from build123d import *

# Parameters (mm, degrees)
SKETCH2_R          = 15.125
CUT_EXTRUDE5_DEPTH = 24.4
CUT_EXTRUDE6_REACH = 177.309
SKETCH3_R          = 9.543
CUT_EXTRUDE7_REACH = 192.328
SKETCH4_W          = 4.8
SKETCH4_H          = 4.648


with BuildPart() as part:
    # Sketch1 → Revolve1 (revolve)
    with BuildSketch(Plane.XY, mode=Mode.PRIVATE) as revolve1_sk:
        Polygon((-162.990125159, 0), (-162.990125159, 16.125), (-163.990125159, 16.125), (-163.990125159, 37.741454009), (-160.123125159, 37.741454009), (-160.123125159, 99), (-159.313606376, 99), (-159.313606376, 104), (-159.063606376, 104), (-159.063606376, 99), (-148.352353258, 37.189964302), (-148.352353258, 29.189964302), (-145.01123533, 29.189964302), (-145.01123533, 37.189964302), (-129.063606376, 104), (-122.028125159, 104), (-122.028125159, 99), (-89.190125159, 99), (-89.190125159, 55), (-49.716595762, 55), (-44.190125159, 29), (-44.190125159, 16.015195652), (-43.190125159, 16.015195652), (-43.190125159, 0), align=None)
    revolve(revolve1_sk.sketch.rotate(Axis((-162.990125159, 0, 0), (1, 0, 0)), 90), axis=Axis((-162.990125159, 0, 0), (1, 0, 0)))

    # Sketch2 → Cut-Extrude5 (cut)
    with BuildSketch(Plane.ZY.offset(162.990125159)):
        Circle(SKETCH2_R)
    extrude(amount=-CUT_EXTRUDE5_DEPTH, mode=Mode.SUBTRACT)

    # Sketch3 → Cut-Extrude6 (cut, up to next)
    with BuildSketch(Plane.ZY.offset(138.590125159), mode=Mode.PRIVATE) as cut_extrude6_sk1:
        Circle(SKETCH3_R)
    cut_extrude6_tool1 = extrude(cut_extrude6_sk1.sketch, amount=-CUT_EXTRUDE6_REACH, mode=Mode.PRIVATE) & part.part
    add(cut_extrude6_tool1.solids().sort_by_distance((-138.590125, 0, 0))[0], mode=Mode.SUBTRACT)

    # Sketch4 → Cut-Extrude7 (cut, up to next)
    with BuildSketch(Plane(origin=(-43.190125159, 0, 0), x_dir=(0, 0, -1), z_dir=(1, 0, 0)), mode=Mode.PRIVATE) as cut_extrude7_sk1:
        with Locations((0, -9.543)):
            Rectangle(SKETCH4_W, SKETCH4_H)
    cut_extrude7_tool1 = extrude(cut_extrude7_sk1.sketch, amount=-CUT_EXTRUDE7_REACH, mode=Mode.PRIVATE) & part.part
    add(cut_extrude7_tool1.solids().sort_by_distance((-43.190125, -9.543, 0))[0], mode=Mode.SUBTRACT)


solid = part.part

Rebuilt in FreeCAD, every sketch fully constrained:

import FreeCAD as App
import Part
import Sketcher
from FreeCAD import Vector
Q = App.Units.Quantity

doc = App.newDocument("Part")
body = doc.addObject("PartDesign::Body", "Body")

# Sketch on XY plane
sketch1 = doc.addObject("Sketcher::SketchObject", "Sketch")
body.addObject(sketch1)
sketch1.AttachmentSupport = (doc.XY_Plane, [""])
sketch1.MapMode = "FlatFace"
sketch1.addGeometry([
    Part.LineSegment(Vector(-162.990125, 16.125, 0), Vector(-162.990125, 0, 0)),  # 0
    Part.LineSegment(Vector(-162.990125, 0, 0), Vector(-43.190125, 0, 0)),  # 1
    Part.LineSegment(Vector(-43.190125, 0, 0), Vector(-43.190125, 16.015196, 0)),  # 2
    Part.LineSegment(Vector(-43.190125, 16.015196, 0), Vector(-44.190125, 16.015196, 0)),  # 3
    Part.LineSegment(Vector(-44.190125, 16.015196, 0), Vector(-44.190125, 29, 0)),  # 4
    Part.LineSegment(Vector(-44.190125, 29, 0), Vector(-49.716596, 55, 0)),  # 5
    Part.LineSegment(Vector(-49.716596, 55, 0), Vector(-89.190125, 55, 0)),  # 6
    Part.LineSegment(Vector(-89.190125, 55, 0), Vector(-89.190125, 99, 0)),  # 7
    Part.LineSegment(Vector(-89.190125, 99, 0), Vector(-122.028125, 99, 0)),  # 8
    Part.LineSegment(Vector(-122.028125, 99, 0), Vector(-122.028125, 104, 0)),  # 9
    Part.LineSegment(Vector(-122.028125, 104, 0), Vector(-129.063606, 104, 0)),  # 10
    Part.LineSegment(Vector(-129.063606, 104, 0), Vector(-145.011235, 37.189964, 0)),  # 11
    Part.LineSegment(Vector(-145.011235, 37.189964, 0), Vector(-145.011235, 29.189964, 0)),  # 12
    Part.LineSegment(Vector(-145.011235, 29.189964, 0), Vector(-148.352353, 29.189964, 0)),  # 13
    Part.LineSegment(Vector(-148.352353, 29.189964, 0), Vector(-148.352353, 37.189964, 0)),  # 14
    Part.LineSegment(Vector(-148.352353, 37.189964, 0), Vector(-159.063606, 99, 0)),  # 15
    Part.LineSegment(Vector(-159.063606, 99, 0), Vector(-159.063606, 104, 0)),  # 16
    Part.LineSegment(Vector(-159.063606, 104, 0), Vector(-159.313606, 104, 0)),  # 17
    Part.LineSegment(Vector(-159.313606, 104, 0), Vector(-159.313606, 99, 0)),  # 18
    Part.LineSegment(Vector(-159.313606, 99, 0), Vector(-160.123125, 99, 0)),  # 19
    Part.LineSegment(Vector(-160.123125, 99, 0), Vector(-160.123125, 37.741454, 0)),  # 20
    Part.LineSegment(Vector(-160.123125, 37.741454, 0), Vector(-163.990125, 37.741454, 0)),  # 21
    Part.LineSegment(Vector(-163.990125, 37.741454, 0), Vector(-163.990125, 16.125, 0)),  # 22
    Part.LineSegment(Vector(-163.990125, 16.125, 0), Vector(-162.990125, 16.125, 0)),  # 23
], False)
sketch1.addConstraint([
    Sketcher.Constraint("Coincident", 0, 2, 1, 1),
    Sketcher.Constraint("Coincident", 1, 2, 2, 1),
    Sketcher.Constraint("Coincident", 2, 2, 3, 1),
    Sketcher.Constraint("Coincident", 3, 2, 4, 1),
    Sketcher.Constraint("Coincident", 4, 2, 5, 1),
    Sketcher.Constraint("Coincident", 5, 2, 6, 1),
    Sketcher.Constraint("Coincident", 6, 2, 7, 1),
    Sketcher.Constraint("Coincident", 7, 2, 8, 1),
    Sketcher.Constraint("Coincident", 8, 2, 9, 1),
    Sketcher.Constraint("Coincident", 9, 2, 10, 1),
    Sketcher.Constraint("Coincident", 10, 2, 11, 1),
    Sketcher.Constraint("Coincident", 11, 2, 12, 1),
    Sketcher.Constraint("Coincident", 12, 2, 13, 1),
    Sketcher.Constraint("Coincident", 13, 2, 14, 1),
    Sketcher.Constraint("Coincident", 14, 2, 15, 1),
    Sketcher.Constraint("Coincident", 15, 2, 16, 1),
    Sketcher.Constraint("Coincident", 16, 2, 17, 1),
    Sketcher.Constraint("Coincident", 17, 2, 18, 1),
    Sketcher.Constraint("Coincident", 18, 2, 19, 1),
    Sketcher.Constraint("Coincident", 19, 2, 20, 1),
    Sketcher.Constraint("Coincident", 20, 2, 21, 1),
    Sketcher.Constraint("Coincident", 21, 2, 22, 1),
    Sketcher.Constraint("Coincident", 22, 2, 23, 1),
    Sketcher.Constraint("Coincident", 23, 2, 0, 1),
    Sketcher.Constraint("Vertical", 0),
    Sketcher.Constraint("Horizontal", 1),
    Sketcher.Constraint("Vertical", 2),
    Sketcher.Constraint("Horizontal", 3),
    Sketcher.Constraint("Vertical", 4),
    Sketcher.Constraint("Horizontal", 6),
    Sketcher.Constraint("Vertical", 7),
    Sketcher.Constraint("Horizontal", 8),
    Sketcher.Constraint("Vertical", 9),
    Sketcher.Constraint("Horizontal", 10),
    Sketcher.Constraint("Vertical", 12),
    Sketcher.Constraint("Horizontal", 13),
    Sketcher.Constraint("Vertical", 14),
    Sketcher.Constraint("Vertical", 16),
    Sketcher.Constraint("Horizontal", 17),
    Sketcher.Constraint("Vertical", 18),
    Sketcher.Constraint("Horizontal", 19),
    Sketcher.Constraint("Vertical", 20),
    Sketcher.Constraint("Horizontal", 21),
    Sketcher.Constraint("Vertical", 22),
    Sketcher.Constraint("Horizontal", 23),
    Sketcher.Constraint("PointOnObject", 0, 2, -1),
    Sketcher.Constraint("Horizontal", 11, 2, 14, 2),
    Sketcher.Constraint("Horizontal", 8, 2, 15, 2),
    Sketcher.Constraint("Horizontal", 10, 2, 16, 2),
    Sketcher.Constraint("Horizontal", 15, 2, 18, 2),
    Sketcher.Constraint("Equal", 3, 23),
    Sketcher.Constraint("DistanceX", 3, 2, 3, 1, Q("1 mm")),
    Sketcher.Constraint("DistanceY", 7, 1, 7, 2, Q("44 mm")),
    Sketcher.Constraint("DistanceY", 9, 1, 9, 2, Q("5 mm")),
    Sketcher.Constraint("DistanceY", 12, 2, 12, 1, Q("8 mm")),
    Sketcher.Constraint("Angle", 5, Q("102 deg")),
    Sketcher.Constraint("DistanceX", 1, 1, 1, 2, Q("119.8 mm")),
    Sketcher.Constraint("DistanceY", -1, 1, 4, 2, Q("29 mm")),
    Sketcher.Constraint("DistanceY", -1, 1, 5, 2, Q("55 mm")),
    Sketcher.Constraint("DistanceX", 6, 2, 4, 2, Q("45 mm")),
    Sketcher.Constraint("DistanceX", 15, 2, 10, 2, Q("30 mm")),
    Sketcher.Constraint("DistanceX", 17, 2, 17, 1, Q("0.25 mm")),
    Sketcher.Constraint("DistanceX", 8, 2, 8, 1, Q("32.838 mm")),
    Sketcher.Constraint("DistanceX", 21, 2, 21, 1, Q("3.867 mm")),
    Sketcher.Constraint("DistanceY", 0, 2, 0, 1, Q("16.125 mm")),
    Sketcher.Constraint("DistanceX", 10, 2, 10, 1, Q("7.035481 mm")),
    Sketcher.Constraint("DistanceX", 13, 2, 13, 1, Q("3.341118 mm")),
    Sketcher.Constraint("DistanceY", 2, 1, 2, 2, Q("16.015196 mm")),
    Sketcher.Constraint("DistanceY", 20, 2, 20, 1, Q("61.258546 mm")),
    Sketcher.Constraint("DistanceX", 0, 2, 11, 2, Q("17.97889 mm")),
    Sketcher.Constraint("DistanceY", 14, 2, 20, 2, Q("0.55149 mm")),
    Sketcher.Constraint("DistanceX", 0, 2, -1, 1, Q("162.990125 mm")),
])
revolution = doc.addObject("PartDesign::Revolution", "Revolution")
body.addObject(revolution)
revolution.Profile = sketch1
revolution.ReferenceAxis = (sketch1, ["H_Axis"])
revolution.Angle = 360

# Sketch on YZ plane
sketch2 = doc.addObject("Sketcher::SketchObject", "Sketch001")
body.addObject(sketch2)
sketch2.AttachmentSupport = (doc.YZ_Plane, [""])
sketch2.MapMode = "FlatFace"
sketch2.AttachmentOffset = App.Placement(Vector(0, 0, -162.990125), App.Rotation())
sketch2.addGeometry(Part.Circle(Vector(0, 0, 0), Vector(0, 0, 1), 15.125), False)
sketch2.addConstraint([
    Sketcher.Constraint("Coincident", 0, 3, -1, 1),
    Sketcher.Constraint("Diameter", 0, Q("30.25 mm")),
])
pocket1 = doc.addObject("PartDesign::Pocket", "Pocket")
body.addObject(pocket1)
pocket1.Profile = sketch2
pocket1.Length = 24.4
pocket1.Reversed = True

# Sketch on YZ plane
sketch3 = doc.addObject("Sketcher::SketchObject", "Sketch002")
body.addObject(sketch3)
sketch3.AttachmentSupport = (doc.YZ_Plane, [""])
sketch3.MapMode = "FlatFace"
sketch3.AttachmentOffset = App.Placement(Vector(0, 0, -138.590125), App.Rotation())
sketch3.addGeometry(Part.Circle(Vector(0, 0, 0), Vector(0, 0, 1), 9.543), False)
sketch3.addConstraint([
    Sketcher.Constraint("Coincident", 0, 3, -1, 1),
    Sketcher.Constraint("Diameter", 0, Q("19.086 mm")),
])
pocket2 = doc.addObject("PartDesign::Pocket", "Pocket001")
body.addObject(pocket2)
pocket2.Profile = sketch3
pocket2.Type = "UpToFirst"
pocket2.Reversed = True

# Sketch on YZ plane
sketch4 = doc.addObject("Sketcher::SketchObject", "Sketch003")
body.addObject(sketch4)
sketch4.AttachmentSupport = (doc.YZ_Plane, [""])
sketch4.MapMode = "FlatFace"
sketch4.AttachmentOffset = App.Placement(Vector(0, 0, -43.190125), App.Rotation())
sketch4.addGeometry([
    Part.LineSegment(Vector(-7.219, 2.4, 0), Vector(-11.867, 2.4, 0)),
    Part.LineSegment(Vector(-11.867, 2.4, 0), Vector(-11.867, -2.4, 0)),
    Part.LineSegment(Vector(-11.867, -2.4, 0), Vector(-7.219, -2.4, 0)),
    Part.LineSegment(Vector(-7.219, -2.4, 0), Vector(-7.219, 2.4, 0)),
], False)
sketch4.addConstraint([
    Sketcher.Constraint("Coincident", 0, 2, 1, 1),
    Sketcher.Constraint("Coincident", 1, 2, 2, 1),
    Sketcher.Constraint("Coincident", 2, 2, 3, 1),
    Sketcher.Constraint("Coincident", 3, 2, 0, 1),
    Sketcher.Constraint("Horizontal", 0),
    Sketcher.Constraint("Vertical", 1),
    Sketcher.Constraint("Horizontal", 2),
    Sketcher.Constraint("Vertical", 3),
    Sketcher.Constraint("DistanceY", 1, 2, 1, 1, Q("4.8 mm")),
    Sketcher.Constraint("DistanceY", -1, 1, 0, 2, Q("2.4 mm")),
    Sketcher.Constraint("DistanceX", 0, 2, 0, 1, Q("4.648 mm")),
    Sketcher.Constraint("DistanceX", 0, 2, -1, 1, Q("11.867 mm")),
])
pocket3 = doc.addObject("PartDesign::Pocket", "Pocket002")
body.addObject(pocket3)
pocket3.Profile = sketch4
pocket3.Type = "UpToFirst"

doc.recompute()
